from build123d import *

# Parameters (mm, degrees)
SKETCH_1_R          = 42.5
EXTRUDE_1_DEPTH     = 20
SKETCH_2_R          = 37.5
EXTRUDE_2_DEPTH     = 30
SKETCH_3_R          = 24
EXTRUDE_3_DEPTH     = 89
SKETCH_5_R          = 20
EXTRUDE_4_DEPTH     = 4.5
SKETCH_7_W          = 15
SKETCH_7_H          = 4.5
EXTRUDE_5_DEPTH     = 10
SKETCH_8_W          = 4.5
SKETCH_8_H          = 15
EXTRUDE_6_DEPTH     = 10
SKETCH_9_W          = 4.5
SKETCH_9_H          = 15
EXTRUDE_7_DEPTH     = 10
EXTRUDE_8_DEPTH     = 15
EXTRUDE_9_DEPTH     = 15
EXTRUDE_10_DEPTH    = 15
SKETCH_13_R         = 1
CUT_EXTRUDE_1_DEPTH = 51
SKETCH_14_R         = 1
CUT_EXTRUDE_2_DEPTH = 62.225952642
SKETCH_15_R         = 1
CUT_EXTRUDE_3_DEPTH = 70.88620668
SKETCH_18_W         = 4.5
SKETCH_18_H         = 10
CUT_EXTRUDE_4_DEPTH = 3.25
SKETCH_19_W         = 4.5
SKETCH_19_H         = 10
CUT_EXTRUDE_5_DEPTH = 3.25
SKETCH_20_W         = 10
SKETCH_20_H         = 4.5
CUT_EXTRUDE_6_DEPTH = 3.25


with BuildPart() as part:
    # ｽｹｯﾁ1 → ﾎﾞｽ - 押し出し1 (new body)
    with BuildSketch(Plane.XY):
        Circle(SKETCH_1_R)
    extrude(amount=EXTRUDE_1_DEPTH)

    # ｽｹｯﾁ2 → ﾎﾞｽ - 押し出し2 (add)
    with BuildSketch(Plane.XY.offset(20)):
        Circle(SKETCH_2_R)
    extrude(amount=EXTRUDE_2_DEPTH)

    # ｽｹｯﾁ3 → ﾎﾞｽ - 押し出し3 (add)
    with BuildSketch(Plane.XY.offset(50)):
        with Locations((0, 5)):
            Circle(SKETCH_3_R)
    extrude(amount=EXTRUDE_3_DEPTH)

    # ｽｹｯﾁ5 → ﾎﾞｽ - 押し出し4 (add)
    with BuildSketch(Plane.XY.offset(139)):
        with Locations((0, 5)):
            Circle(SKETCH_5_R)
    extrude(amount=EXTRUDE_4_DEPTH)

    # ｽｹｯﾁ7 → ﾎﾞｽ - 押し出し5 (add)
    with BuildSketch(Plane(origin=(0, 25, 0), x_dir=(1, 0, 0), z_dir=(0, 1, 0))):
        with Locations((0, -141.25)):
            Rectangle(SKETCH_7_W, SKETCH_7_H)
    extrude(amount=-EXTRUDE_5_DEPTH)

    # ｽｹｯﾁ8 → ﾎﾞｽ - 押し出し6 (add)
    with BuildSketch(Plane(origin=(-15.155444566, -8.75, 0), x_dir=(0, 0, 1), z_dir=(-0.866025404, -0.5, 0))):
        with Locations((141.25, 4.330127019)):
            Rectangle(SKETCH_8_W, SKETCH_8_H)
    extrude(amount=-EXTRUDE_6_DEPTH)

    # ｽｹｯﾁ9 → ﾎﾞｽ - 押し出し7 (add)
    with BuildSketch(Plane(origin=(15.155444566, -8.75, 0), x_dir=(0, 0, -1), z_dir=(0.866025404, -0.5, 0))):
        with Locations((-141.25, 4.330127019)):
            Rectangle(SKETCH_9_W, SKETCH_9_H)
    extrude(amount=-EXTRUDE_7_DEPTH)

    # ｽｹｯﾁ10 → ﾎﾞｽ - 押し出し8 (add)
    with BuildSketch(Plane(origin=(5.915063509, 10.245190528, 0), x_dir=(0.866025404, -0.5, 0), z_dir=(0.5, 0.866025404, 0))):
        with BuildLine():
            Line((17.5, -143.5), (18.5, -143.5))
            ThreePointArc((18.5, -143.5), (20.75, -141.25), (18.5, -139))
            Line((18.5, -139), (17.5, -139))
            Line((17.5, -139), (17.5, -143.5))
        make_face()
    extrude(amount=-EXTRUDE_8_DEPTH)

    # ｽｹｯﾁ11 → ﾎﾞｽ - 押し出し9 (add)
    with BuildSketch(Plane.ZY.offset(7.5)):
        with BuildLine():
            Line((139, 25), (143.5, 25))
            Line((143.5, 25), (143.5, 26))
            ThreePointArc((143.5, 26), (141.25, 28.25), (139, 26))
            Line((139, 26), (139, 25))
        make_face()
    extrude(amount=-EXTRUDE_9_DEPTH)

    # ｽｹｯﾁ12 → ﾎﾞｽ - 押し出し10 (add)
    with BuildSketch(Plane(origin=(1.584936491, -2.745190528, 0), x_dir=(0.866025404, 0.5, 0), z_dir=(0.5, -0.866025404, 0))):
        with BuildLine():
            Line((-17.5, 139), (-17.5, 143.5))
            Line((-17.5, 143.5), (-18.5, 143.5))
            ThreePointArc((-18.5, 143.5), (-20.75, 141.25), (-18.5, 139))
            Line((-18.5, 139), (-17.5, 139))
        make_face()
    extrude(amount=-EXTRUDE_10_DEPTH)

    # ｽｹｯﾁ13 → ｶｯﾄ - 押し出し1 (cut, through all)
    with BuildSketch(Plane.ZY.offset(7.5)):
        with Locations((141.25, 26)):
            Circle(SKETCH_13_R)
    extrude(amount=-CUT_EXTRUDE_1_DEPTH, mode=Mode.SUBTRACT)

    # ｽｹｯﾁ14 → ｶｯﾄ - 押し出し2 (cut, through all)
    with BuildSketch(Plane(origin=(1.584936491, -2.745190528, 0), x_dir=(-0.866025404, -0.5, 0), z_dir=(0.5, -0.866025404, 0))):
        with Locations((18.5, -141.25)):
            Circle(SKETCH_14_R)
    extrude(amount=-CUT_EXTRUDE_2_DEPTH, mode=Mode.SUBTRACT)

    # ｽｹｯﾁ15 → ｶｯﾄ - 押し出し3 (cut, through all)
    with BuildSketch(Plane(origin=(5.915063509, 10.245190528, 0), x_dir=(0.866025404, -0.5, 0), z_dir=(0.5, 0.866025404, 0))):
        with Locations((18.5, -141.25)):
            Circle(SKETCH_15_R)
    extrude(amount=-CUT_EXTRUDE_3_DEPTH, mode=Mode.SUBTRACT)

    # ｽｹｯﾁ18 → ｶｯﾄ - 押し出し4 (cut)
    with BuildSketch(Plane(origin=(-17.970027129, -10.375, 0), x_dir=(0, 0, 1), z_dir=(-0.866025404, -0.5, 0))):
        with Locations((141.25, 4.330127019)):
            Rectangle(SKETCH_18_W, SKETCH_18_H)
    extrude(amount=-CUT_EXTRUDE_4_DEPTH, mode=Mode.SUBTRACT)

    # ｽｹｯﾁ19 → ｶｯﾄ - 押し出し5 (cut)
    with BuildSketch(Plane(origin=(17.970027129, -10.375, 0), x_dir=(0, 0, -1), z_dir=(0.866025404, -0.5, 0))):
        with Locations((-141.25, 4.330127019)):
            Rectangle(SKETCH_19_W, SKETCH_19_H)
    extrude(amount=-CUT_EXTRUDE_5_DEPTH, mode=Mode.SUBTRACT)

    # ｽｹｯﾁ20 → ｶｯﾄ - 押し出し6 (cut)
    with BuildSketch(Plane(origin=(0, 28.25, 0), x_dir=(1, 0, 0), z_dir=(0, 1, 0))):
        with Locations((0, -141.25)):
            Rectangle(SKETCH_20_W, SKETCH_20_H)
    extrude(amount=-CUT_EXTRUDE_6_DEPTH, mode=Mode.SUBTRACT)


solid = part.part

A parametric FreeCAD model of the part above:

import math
import FreeCAD as App
import Part
import Sketcher

V = App.Vector
Q = App.Units.Quantity

doc = App.newDocument("Part")
body = doc.addObject("PartDesign::Body", "Body")

# Sketch on XY plane
sketch1 = doc.addObject("Sketcher::SketchObject", "Sketch")
body.addObject(sketch1)
sketch1.AttachmentSupport = (doc.XY_Plane, [""])
sketch1.MapMode = "FlatFace"
sketch1.addGeometry(Part.Circle(V(0, 0, 0), V(0, 0, 1), 42.5), False)
sketch1.addConstraint([
    Sketcher.Constraint("Coincident", 0, 3, -1, 1),
    Sketcher.Constraint("Diameter", 0, Q("85 mm")),
])
pad1 = doc.addObject("PartDesign::Pad", "Pad")
body.addObject(pad1)
pad1.Profile = sketch1
pad1.Length = 20

# Sketch on XY plane
sketch2 = doc.addObject("Sketcher::SketchObject", "Sketch001")
body.addObject(sketch2)
sketch2.AttachmentSupport = (doc.XY_Plane, [""])
sketch2.MapMode = "FlatFace"
sketch2.AttachmentOffset = App.Placement(V(0, 0, 20), App.Rotation())
sketch2.addGeometry(Part.Circle(V(0, 0, 0), V(0, 0, 1), 37.5), False)
sketch2.addConstraint([
    Sketcher.Constraint("Coincident", 0, 3, -1, 1),
    Sketcher.Constraint("Diameter", 0, Q("75 mm")),
])
pad2 = doc.addObject("PartDesign::Pad", "Pad001")
body.addObject(pad2)
pad2.Profile = sketch2
pad2.Length = 30

# Sketch on XY plane
sketch3 = doc.addObject("Sketcher::SketchObject", "Sketch002")
body.addObject(sketch3)
sketch3.AttachmentSupport = (doc.XY_Plane, [""])
sketch3.MapMode = "FlatFace"
sketch3.AttachmentOffset = App.Placement(V(0, 0, 50), App.Rotation())
sketch3.addGeometry(Part.Circle(V(0, 5, 0), V(0, 0, 1), 24), False)
sketch3.addConstraint([
    Sketcher.Constraint("PointOnObject", 0, 3, -2),
    Sketcher.Constraint("Diameter", 0, Q("48 mm")),
    Sketcher.Constraint("DistanceY", -1, 1, 0, 3, Q("5 mm")),
])
pad3 = doc.addObject("PartDesign::Pad", "Pad002")
body.addObject(pad3)
pad3.Profile = sketch3
pad3.Length = 89

# Sketch on XY plane
sketch4 = doc.addObject("Sketcher::SketchObject", "Sketch003")
body.addObject(sketch4)
sketch4.AttachmentSupport = (doc.XY_Plane, [""])
sketch4.MapMode = "FlatFace"
sketch4.AttachmentOffset = App.Placement(V(0, 0, 139), App.Rotation())
sketch4.addGeometry(Part.Circle(V(0, 5, 0), V(0, 0, 1), 20), False)
sketch4.addConstraint([
    Sketcher.Constraint("PointOnObject", 0, 3, -2),
    Sketcher.Constraint("Diameter", 0, Q("40 mm")),
    Sketcher.Constraint("DistanceY", -1, 1, 0, 3, Q("5 mm")),
])
pad4 = doc.addObject("PartDesign::Pad", "Pad003")
body.addObject(pad4)
pad4.Profile = sketch4
pad4.Length = 4.5

# Sketch on XZ plane
sketch5 = doc.addObject("Sketcher::SketchObject", "Sketch004")
body.addObject(sketch5)
sketch5.AttachmentSupport = (doc.XZ_Plane, [""])
sketch5.MapMode = "FlatFace"
sketch5.AttachmentOffset = App.Placement(V(0, 0, -25), App.Rotation())
sketch5.addGeometry([
    Part.LineSegment(V(-7.5, 139, 0), V(-7.5, 143.5, 0)),
    Part.LineSegment(V(-7.5, 143.5, 0), V(7.5, 143.5, 0)),
    Part.LineSegment(V(7.5, 143.5, 0), V(7.5, 139, 0)),
    Part.LineSegment(V(7.5, 139, 0), V(-7.5, 139, 0)),
], False)
sketch5.addConstraint([
    Sketcher.Constraint("Coincident", 0, 2, 1, 1),
    Sketcher.Constraint("Coincident", 1, 2, 2, 1),
    Sketcher.Constraint("Coincident", 2, 2, 3, 1),
    Sketcher.Constraint("Coincident", 3, 2, 0, 1),
    Sketcher.Constraint("Vertical", 0),
    Sketcher.Constraint("Horizontal", 1),
    Sketcher.Constraint("Vertical", 2),
    Sketcher.Constraint("Horizontal", 3),
    Sketcher.Constraint("DistanceX", 1, 1, 1, 2, Q("15 mm")),
    Sketcher.Constraint("DistanceY", 0, 1, 0, 2, Q("4.5 mm")),
    Sketcher.Constraint("DistanceY", -1, 1, 2, 2, Q("139 mm")),
    Sketcher.Constraint("DistanceX", 0, 2, -1, 1, Q("7.5 mm")),
])
pad5 = doc.addObject("PartDesign::Pad", "Pad004")
body.addObject(pad5)
pad5.Profile = sketch5
pad5.Length = 10

# Sketch on an angled plane
sketch6 = doc.addObject("Sketcher::SketchObject", "Sketch005")
body.addObject(sketch6)
sketch6.Placement = App.Placement(V(-15.155445, -8.75, 0), App.Rotation(V(0, 0, 1), V(-0.5, 0.866025404, 0), V(-0.866025404, -0.5, 0), "ZXY"))
sketch6.addGeometry([
    Part.LineSegment(V(139, 11.830127, 0), V(139, -3.169873, 0)),
    Part.LineSegment(V(139, -3.169873, 0), V(143.5, -3.169873, 0)),
    Part.LineSegment(V(143.5, -3.169873, 0), V(143.5, 11.830127, 0)),
    Part.LineSegment(V(143.5, 11.830127, 0), V(139, 11.830127, 0)),
], False)
sketch6.addConstraint([
    Sketcher.Constraint("Coincident", 0, 2, 1, 1),
    Sketcher.Constraint("Coincident", 1, 2, 2, 1),
    Sketcher.Constraint("Coincident", 2, 2, 3, 1),
    Sketcher.Constraint("Coincident", 3, 2, 0, 1),
    Sketcher.Constraint("Vertical", 0),
    Sketcher.Constraint("Horizontal", 1),
    Sketcher.Constraint("Vertical", 2),
    Sketcher.Constraint("Horizontal", 3),
    Sketcher.Constraint("DistanceY", 0, 2, 0, 1, Q("15 mm")),
    Sketcher.Constraint("DistanceX", 1, 1, 1, 2, Q("4.5 mm")),
    Sketcher.Constraint("DistanceX", -1, 1, 0, 2, Q("139 mm")),
    Sketcher.Constraint("DistanceY", 0, 2, -1, 1, Q("3.169873 mm")),
])
pad6 = doc.addObject("PartDesign::Pad", "Pad005")
body.addObject(pad6)
pad6.Profile = sketch6
pad6.Length = 10
pad6.Reversed = True

# Sketch on an angled plane
sketch7 = doc.addObject("Sketcher::SketchObject", "Sketch006")
body.addObject(sketch7)
sketch7.Placement = App.Placement(V(15.155445, -8.75, 0), App.Rotation(V(0, 0, -1), V(0.5, 0.866025404, 0), V(0.866025404, -0.5, 0), "ZXY"))
sketch7.addGeometry([
    Part.LineSegment(V(-143.5, 11.830127, 0), V(-143.5, -3.169873, 0)),
    Part.LineSegment(V(-143.5, -3.169873, 0), V(-139, -3.169873, 0)),
    Part.LineSegment(V(-139, -3.169873, 0), V(-139, 11.830127, 0)),
    Part.LineSegment(V(-139, 11.830127, 0), V(-143.5, 11.830127, 0)),
], False)
sketch7.addConstraint([
    Sketcher.Constraint("Coincident", 0, 2, 1, 1),
    Sketcher.Constraint("Coincident", 1, 2, 2, 1),
    Sketcher.Constraint("Coincident", 2, 2, 3, 1),
    Sketcher.Constraint("Coincident", 3, 2, 0, 1),
    Sketcher.Constraint("Vertical", 0),
    Sketcher.Constraint("Horizontal", 1),
    Sketcher.Constraint("Vertical", 2),
    Sketcher.Constraint("Horizontal", 3),
    Sketcher.Constraint("DistanceY", 0, 2, 0, 1, Q("15 mm")),
    Sketcher.Constraint("DistanceX", 1, 1, 1, 2, Q("4.5 mm")),
    Sketcher.Constraint("DistanceX", 1, 2, -1, 1, Q("139 mm")),
    Sketcher.Constraint("DistanceY", 0, 2, -1, 1, Q("3.169873 mm")),
])
pad7 = doc.addObject("PartDesign::Pad", "Pad006")
body.addObject(pad7)
pad7.Profile = sketch7
pad7.Length = 10
pad7.Reversed = True

# Sketch on an angled plane
sketch8 = doc.addObject("Sketcher::SketchObject", "Sketch007")
body.addObject(sketch8)
sketch8.Placement = App.Placement(V(5.915064, 10.245191, 0), App.Rotation(V(0.866025404, -0.5, 0), V(0, 0, -1), V(0.5, 0.866025404, 0), "ZXY"))
sketch8.addGeometry([
    Part.LineSegment(V(17.5, -143.5, 0), V(18.5, -143.5, 0)),
    Part.ArcOfCircle(Part.Circle(V(18.5, -141.25, 0), V(0, 0, 1), 2.25), math.radians(-90), math.radians(90)),
    Part.LineSegment(V(18.5, -139, 0), V(17.5, -139, 0)),
    Part.LineSegment(V(17.5, -139, 0), V(17.5, -143.5, 0)),
], False)
sketch8.addConstraint([
    Sketcher.Constraint("Tangent", 0, 2, 1, 1),
    Sketcher.Constraint("Tangent", 1, 2, 2, 1),
    Sketcher.Constraint("Coincident", 2, 2, 3, 1),
    Sketcher.Constraint("Coincident", 3, 2, 0, 1),
    Sketcher.Constraint("Horizontal", 0),
    Sketcher.Constraint("Horizontal", 2),
    Sketcher.Constraint("Vertical", 3),
    Sketcher.Constraint("DistanceX", 0, 1, 0, 2, Q("1 mm")),
    Sketcher.Constraint("Radius", 1, Q("2.25 mm")),
    Sketcher.Constraint("DistanceY", 1, 2, -1, 1, Q("139 mm")),
    Sketcher.Constraint("DistanceX", -1, 1, 1, 3, Q("18.5 mm")),
])
pad8 = doc.addObject("PartDesign::Pad", "Pad007")
body.addObject(pad8)
pad8.Profile = sketch8
pad8.Length = 15
pad8.Reversed = True

# Sketch on YZ plane
sketch9 = doc.addObject("Sketcher::SketchObject", "Sketch008")
body.addObject(sketch9)
sketch9.AttachmentSupport = (doc.YZ_Plane, [""])
sketch9.MapMode = "FlatFace"
sketch9.AttachmentOffset = App.Placement(V(0, 0, -7.5), App.Rotation())
sketch9.addGeometry([
    Part.LineSegment(V(25, 139, 0), V(25, 143.5, 0)),
    Part.LineSegment(V(25, 143.5, 0), V(26, 143.5, 0)),
    Part.ArcOfCircle(Part.Circle(V(26, 141.25, 0), V(0, 0, 1), 2.25), math.radians(-90), math.radians(90)),
    Part.LineSegment(V(26, 139, 0), V(25, 139, 0)),
], False)
sketch9.addConstraint([
    Sketcher.Constraint("Coincident", 0, 2, 1, 1),
    Sketcher.Constraint("Tangent", 1, 2, 2, 2),
    Sketcher.Constraint("Tangent", 2, 1, 3, 1),
    Sketcher.Constraint("Coincident", 3, 2, 0, 1),
    Sketcher.Constraint("Vertical", 0),
    Sketcher.Constraint("Horizontal", 1),
    Sketcher.Constraint("Horizontal", 3),
    Sketcher.Constraint("DistanceX", 1, 1, 1, 2, Q("1 mm")),
    Sketcher.Constraint("Radius", 2, Q("2.25 mm")),
    Sketcher.Constraint("DistanceX", -1, 1, 2, 3, Q("26 mm")),
    Sketcher.Constraint("DistanceY", -1, 1, 2, 1, Q("139 mm")),
])
pad9 = doc.addObject("PartDesign::Pad", "Pad008")
body.addObject(pad9)
pad9.Profile = sketch9
pad9.Length = 15

# Sketch on an angled plane
sketch10 = doc.addObject("Sketcher::SketchObject", "Sketch009")
body.addObject(sketch10)
sketch10.Placement = App.Placement(V(1.584936, -2.745191, 0), App.Rotation(V(0.866025404, 0.5, 0), V(0, 0, 1), V(0.5, -0.866025404, 0), "ZXY"))
sketch10.addGeometry([
    Part.LineSegment(V(-17.5, 139, 0), V(-17.5, 143.5, 0)),
    Part.LineSegment(V(-17.5, 143.5, 0), V(-18.5, 143.5, 0)),
    Part.ArcOfCircle(Part.Circle(V(-18.5, 141.25, 0), V(0, 0, 1), 2.25), math.radians(90), math.radians(270)),
    Part.LineSegment(V(-18.5, 139, 0), V(-17.5, 139, 0)),
], False)
sketch10.addConstraint([
    Sketcher.Constraint("Coincident", 0, 2, 1, 1),
    Sketcher.Constraint("Tangent", 1, 2, 2, 1),
    Sketcher.Constraint("Tangent", 2, 2, 3, 1),
    Sketcher.Constraint("Coincident", 3, 2, 0, 1),
    Sketcher.Constraint("Vertical", 0),
    Sketcher.Constraint("Horizontal", 1),
    Sketcher.Constraint("Horizontal", 3),
    Sketcher.Constraint("DistanceX", 1, 2, 1, 1, Q("1 mm")),
    Sketcher.Constraint("Radius", 2, Q("2.25 mm")),
    Sketcher.Constraint("DistanceY", -1, 1, 2, 2, Q("139 mm")),
    Sketcher.Constraint("DistanceX", 2, 3, -1, 1, Q("18.5 mm")),
])
pad10 = doc.addObject("PartDesign::Pad", "Pad009")
body.addObject(pad10)
pad10.Profile = sketch10
pad10.Length = 15
pad10.Reversed = True

# Sketch on YZ plane
sketch11 = doc.addObject("Sketcher::SketchObject", "Sketch010")
body.addObject(sketch11)
sketch11.AttachmentSupport = (doc.YZ_Plane, [""])
sketch11.MapMode = "FlatFace"
sketch11.AttachmentOffset = App.Placement(V(0, 0, -7.5), App.Rotation())
sketch11.addGeometry(Part.Circle(V(26, 141.25, 0), V(0, 0, 1), 1), False)
sketch11.addConstraint([
    Sketcher.Constraint("Diameter", 0, Q("2 mm")),
    Sketcher.Constraint("DistanceX", -1, 1, 0, 3, Q("26 mm")),
    Sketcher.Constraint("DistanceY", -1, 1, 0, 3, Q("141.25 mm")),
])
pocket1 = doc.addObject("PartDesign::Pocket", "Pocket")
body.addObject(pocket1)
pocket1.Profile = sketch11
pocket1.Type = "ThroughAll"
pocket1.Reversed = True

# Sketch on an angled plane
sketch12 = doc.addObject("Sketcher::SketchObject", "Sketch011")
body.addObject(sketch12)
sketch12.Placement = App.Placement(V(1.584936, -2.745191, 0), App.Rotation(V(-0.866025404, -0.5, 0), V(0, 0, -1), V(0.5, -0.866025404, 0), "ZXY"))
sketch12.addGeometry(Part.Circle(V(18.5, -141.25, 0), V(0, 0, 1), 1), False)
sketch12.addConstraint([
    Sketcher.Constraint("Diameter", 0, Q("2 mm")),
    Sketcher.Constraint("DistanceX", -1, 1, 0, 3, Q("18.5 mm")),
    Sketcher.Constraint("DistanceY", 0, 3, -1, 1, Q("141.25 mm")),
])
pocket2 = doc.addObject("PartDesign::Pocket", "Pocket001")
body.addObject(pocket2)
pocket2.Profile = sketch12
pocket2.Type = "ThroughAll"

# Sketch on an angled plane
sketch13 = doc.addObject("Sketcher::SketchObject", "Sketch012")
body.addObject(sketch13)
sketch13.Placement = App.Placement(V(5.915064, 10.245191, 0), App.Rotation(V(0.866025404, -0.5, 0), V(0, 0, -1), V(0.5, 0.866025404, 0), "ZXY"))
sketch13.addGeometry(Part.Circle(V(18.5, -141.25, 0), V(0, 0, 1), 1), False)
sketch13.addConstraint([
    Sketcher.Constraint("Diameter", 0, Q("2 mm")),
    Sketcher.Constraint("DistanceX", -1, 1, 0, 3, Q("18.5 mm")),
    Sketcher.Constraint("DistanceY", 0, 3, -1, 1, Q("141.25 mm")),
])
pocket3 = doc.addObject("PartDesign::Pocket", "Pocket002")
body.addObject(pocket3)
pocket3.Profile = sketch13
pocket3.Type = "ThroughAll"

# Sketch on an angled plane
sketch14 = doc.addObject("Sketcher::SketchObject", "Sketch013")
body.addObject(sketch14)
sketch14.Placement = App.Placement(V(-17.970027, -10.375, 0), App.Rotation(V(0, 0, 1), V(-0.5, 0.866025404, 0), V(-0.866025404, -0.5, 0), "ZXY"))
sketch14.addGeometry([
    Part.LineSegment(V(139, 9.330127, 0), V(139, -0.669873, 0)),
    Part.LineSegment(V(139, -0.669873, 0), V(143.5, -0.669873, 0)),
    Part.LineSegment(V(143.5, -0.669873, 0), V(143.5, 9.330127, 0)),
    Part.LineSegment(V(143.5, 9.330127, 0), V(139, 9.330127, 0)),
], False)
sketch14.addConstraint([
    Sketcher.Constraint("Coincident", 0, 2, 1, 1),
    Sketcher.Constraint("Coincident", 1, 2, 2, 1),
    Sketcher.Constraint("Coincident", 2, 2, 3, 1),
    Sketcher.Constraint("Coincident", 3, 2, 0, 1),
    Sketcher.Constraint("Vertical", 0),
    Sketcher.Constraint("Horizontal", 1),
    Sketcher.Constraint("Vertical", 2),
    Sketcher.Constraint("Horizontal", 3),
    Sketcher.Constraint("DistanceY", 0, 2, 0, 1, Q("10 mm")),
    Sketcher.Constraint("DistanceX", 1, 1, 1, 2, Q("4.5 mm")),
    Sketcher.Constraint("DistanceX", -1, 1, 0, 2, Q("139 mm")),
    Sketcher.Constraint("DistanceY", 0, 2, -1, 1, Q("0.669873 mm")),
])
pocket4 = doc.addObject("PartDesign::Pocket", "Pocket003")
body.addObject(pocket4)
pocket4.Profile = sketch14
pocket4.Length = 3.25

# Sketch on an angled plane
sketch15 = doc.addObject("Sketcher::SketchObject", "Sketch014")
body.addObject(sketch15)
sketch15.Placement = App.Placement(V(17.970027, -10.375, 0), App.Rotation(V(0, 0, -1), V(0.5, 0.866025404, 0), V(0.866025404, -0.5, 0), "ZXY"))
sketch15.addGeometry([
    Part.LineSegment(V(-143.5, 9.330127, 0), V(-143.5, -0.669873, 0)),
    Part.LineSegment(V(-143.5, -0.669873, 0), V(-139, -0.669873, 0)),
    Part.LineSegment(V(-139, -0.669873, 0), V(-139, 9.330127, 0)),
    Part.LineSegment(V(-139, 9.330127, 0), V(-143.5, 9.330127, 0)),
], False)
sketch15.addConstraint([
    Sketcher.Constraint("Coincident", 0, 2, 1, 1),
    Sketcher.Constraint("Coincident", 1, 2, 2, 1),
    Sketcher.Constraint("Coincident", 2, 2, 3, 1),
    Sketcher.Constraint("Coincident", 3, 2, 0, 1),
    Sketcher.Constraint("Vertical", 0),
    Sketcher.Constraint("Horizontal", 1),
    Sketcher.Constraint("Vertical", 2),
    Sketcher.Constraint("Horizontal", 3),
    Sketcher.Constraint("DistanceY", 0, 2, 0, 1, Q("10 mm")),
    Sketcher.Constraint("DistanceX", 1, 1, 1, 2, Q("4.5 mm")),
    Sketcher.Constraint("DistanceX", 1, 2, -1, 1, Q("139 mm")),
    Sketcher.Constraint("DistanceY", 0, 2, -1, 1, Q("0.669873 mm")),
])
pocket5 = doc.addObject("PartDesign::Pocket", "Pocket004")
body.addObject(pocket5)
pocket5.Profile = sketch15
pocket5.Length = 3.25

# Sketch on XZ plane
sketch16 = doc.addObject("Sketcher::SketchObject", "Sketch015")
body.addObject(sketch16)
sketch16.AttachmentSupport = (doc.XZ_Plane, [""])
sketch16.MapMode = "FlatFace"
sketch16.AttachmentOffset = App.Placement(V(0, 0, -28.25), App.Rotation())
sketch16.addGeometry([
    Part.LineSegment(V(-5, 139, 0), V(-5, 143.5, 0)),
    Part.LineSegment(V(-5, 143.5, 0), V(5, 143.5, 0)),
    Part.LineSegment(V(5, 143.5, 0), V(5, 139, 0)),
    Part.LineSegment(V(5, 139, 0), V(-5, 139, 0)),
], False)
sketch16.addConstraint([
    Sketcher.Constraint("Coincident", 0, 2, 1, 1),
    Sketcher.Constraint("Coincident", 1, 2, 2, 1),
    Sketcher.Constraint("Coincident", 2, 2, 3, 1),
    Sketcher.Constraint("Coincident", 3, 2, 0, 1),
    Sketcher.Constraint("Vertical", 0),
    Sketcher.Constraint("Horizontal", 1),
    Sketcher.Constraint("Vertical", 2),
    Sketcher.Constraint("Horizontal", 3),
    Sketcher.Constraint("DistanceX", 1, 1, 1, 2, Q("10 mm")),
    Sketcher.Constraint("DistanceY", 0, 1, 0, 2, Q("4.5 mm")),
    Sketcher.Constraint("DistanceX", 0, 2, -1, 1, Q("5 mm")),
    Sketcher.Constraint("DistanceY", -1, 1, 2, 2, Q("139 mm")),
])
pocket6 = doc.addObject("PartDesign::Pocket", "Pocket005")
body.addObject(pocket6)
pocket6.Profile = sketch16
pocket6.Length = 3.25
pocket6.Reversed = True

doc.recompute()
